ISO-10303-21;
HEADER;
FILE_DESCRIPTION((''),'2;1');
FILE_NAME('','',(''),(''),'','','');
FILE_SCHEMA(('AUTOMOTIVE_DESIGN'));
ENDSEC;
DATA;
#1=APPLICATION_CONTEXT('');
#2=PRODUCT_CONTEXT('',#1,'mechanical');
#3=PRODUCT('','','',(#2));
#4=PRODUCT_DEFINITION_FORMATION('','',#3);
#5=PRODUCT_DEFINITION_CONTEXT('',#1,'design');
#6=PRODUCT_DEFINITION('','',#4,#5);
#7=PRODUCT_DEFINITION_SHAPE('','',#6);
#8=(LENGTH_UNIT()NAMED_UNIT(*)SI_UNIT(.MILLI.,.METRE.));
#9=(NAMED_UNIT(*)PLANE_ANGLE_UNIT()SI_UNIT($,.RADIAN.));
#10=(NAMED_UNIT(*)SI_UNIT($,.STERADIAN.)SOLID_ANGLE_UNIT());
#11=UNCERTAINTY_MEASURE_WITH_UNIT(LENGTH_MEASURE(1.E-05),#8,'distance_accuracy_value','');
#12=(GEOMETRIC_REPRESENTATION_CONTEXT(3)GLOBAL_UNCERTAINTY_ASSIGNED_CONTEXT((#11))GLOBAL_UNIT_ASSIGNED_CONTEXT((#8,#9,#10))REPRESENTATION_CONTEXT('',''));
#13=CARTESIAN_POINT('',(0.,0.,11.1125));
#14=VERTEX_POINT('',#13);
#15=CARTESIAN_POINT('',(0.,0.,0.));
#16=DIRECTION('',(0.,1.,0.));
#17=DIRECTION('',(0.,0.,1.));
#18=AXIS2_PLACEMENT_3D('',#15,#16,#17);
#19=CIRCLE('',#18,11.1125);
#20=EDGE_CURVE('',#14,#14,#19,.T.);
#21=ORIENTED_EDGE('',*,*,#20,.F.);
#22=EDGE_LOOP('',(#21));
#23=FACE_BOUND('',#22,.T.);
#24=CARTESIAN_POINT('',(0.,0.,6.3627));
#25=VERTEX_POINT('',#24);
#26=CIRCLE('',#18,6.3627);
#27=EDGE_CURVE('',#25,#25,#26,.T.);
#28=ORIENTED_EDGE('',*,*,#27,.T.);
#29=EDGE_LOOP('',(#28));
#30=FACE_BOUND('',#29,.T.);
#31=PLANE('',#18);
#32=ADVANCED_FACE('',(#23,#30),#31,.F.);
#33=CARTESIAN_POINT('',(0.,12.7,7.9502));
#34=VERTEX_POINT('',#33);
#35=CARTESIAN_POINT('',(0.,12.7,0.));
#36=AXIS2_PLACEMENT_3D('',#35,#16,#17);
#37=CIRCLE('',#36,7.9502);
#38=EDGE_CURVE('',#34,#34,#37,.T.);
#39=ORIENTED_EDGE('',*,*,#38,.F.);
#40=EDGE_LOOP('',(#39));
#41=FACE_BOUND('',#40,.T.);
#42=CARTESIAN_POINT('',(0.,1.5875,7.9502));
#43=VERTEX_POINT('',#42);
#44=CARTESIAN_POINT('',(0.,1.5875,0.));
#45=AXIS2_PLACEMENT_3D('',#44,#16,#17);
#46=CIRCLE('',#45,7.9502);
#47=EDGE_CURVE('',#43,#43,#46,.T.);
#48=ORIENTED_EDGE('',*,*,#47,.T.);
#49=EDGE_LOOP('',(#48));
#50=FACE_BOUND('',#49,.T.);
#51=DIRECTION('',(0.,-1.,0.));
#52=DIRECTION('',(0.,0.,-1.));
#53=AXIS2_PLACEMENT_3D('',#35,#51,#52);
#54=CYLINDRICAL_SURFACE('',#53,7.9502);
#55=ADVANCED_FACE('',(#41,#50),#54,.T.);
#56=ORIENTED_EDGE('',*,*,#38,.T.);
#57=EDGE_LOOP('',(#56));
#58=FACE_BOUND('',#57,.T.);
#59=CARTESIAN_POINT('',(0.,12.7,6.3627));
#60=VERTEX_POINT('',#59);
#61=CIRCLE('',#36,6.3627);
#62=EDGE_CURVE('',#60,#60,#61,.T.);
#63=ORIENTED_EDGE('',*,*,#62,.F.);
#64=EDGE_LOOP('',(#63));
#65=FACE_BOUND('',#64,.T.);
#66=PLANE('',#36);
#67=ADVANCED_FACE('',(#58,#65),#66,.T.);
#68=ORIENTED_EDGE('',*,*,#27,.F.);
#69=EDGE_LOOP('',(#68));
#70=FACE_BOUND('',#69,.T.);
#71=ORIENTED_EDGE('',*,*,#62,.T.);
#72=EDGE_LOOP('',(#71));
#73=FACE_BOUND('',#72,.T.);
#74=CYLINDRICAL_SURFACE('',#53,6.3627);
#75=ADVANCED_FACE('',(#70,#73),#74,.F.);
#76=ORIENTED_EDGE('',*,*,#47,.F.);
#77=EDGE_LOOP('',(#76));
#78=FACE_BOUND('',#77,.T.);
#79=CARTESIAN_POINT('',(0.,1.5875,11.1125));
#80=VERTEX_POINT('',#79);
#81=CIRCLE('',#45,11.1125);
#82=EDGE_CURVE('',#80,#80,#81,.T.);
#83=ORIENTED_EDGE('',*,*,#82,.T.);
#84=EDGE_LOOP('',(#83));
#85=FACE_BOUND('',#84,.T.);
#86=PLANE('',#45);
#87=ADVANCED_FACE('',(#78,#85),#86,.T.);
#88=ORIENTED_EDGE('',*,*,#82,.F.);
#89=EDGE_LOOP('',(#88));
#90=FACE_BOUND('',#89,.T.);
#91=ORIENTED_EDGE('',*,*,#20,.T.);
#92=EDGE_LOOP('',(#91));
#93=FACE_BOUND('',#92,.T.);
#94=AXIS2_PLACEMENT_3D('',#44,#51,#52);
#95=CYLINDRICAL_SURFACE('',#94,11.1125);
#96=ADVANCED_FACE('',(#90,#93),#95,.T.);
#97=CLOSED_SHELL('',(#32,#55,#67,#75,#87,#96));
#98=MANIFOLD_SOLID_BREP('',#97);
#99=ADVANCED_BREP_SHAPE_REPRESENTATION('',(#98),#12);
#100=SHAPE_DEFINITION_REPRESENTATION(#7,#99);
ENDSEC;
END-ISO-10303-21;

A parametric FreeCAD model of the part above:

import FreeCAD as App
import Part
import Sketcher

V = App.Vector
Q = App.Units.Quantity

doc = App.newDocument("Part")
body = doc.addObject("PartDesign::Body", "Body")

sketch1 = body.newObject("Sketcher::SketchObject", "Sketch")
sketch1.AttachmentSupport = (doc.getObject("XZ_Plane"), [""])
sketch1.MapMode = "FlatFace"
sketch1.addGeometry([
    Part.Circle(V(0, 0, 0), V(0, 0, 1), 7.9502),
    Part.Circle(V(0, 0, 0), V(0, 0, 1), 6.3627),
], False)
sketch1.addConstraint([
    Sketcher.Constraint("Coincident", 0, 3, -1, 1),
    Sketcher.Constraint("Coincident", 1, 3, -1, 1),
    Sketcher.Constraint("Diameter", 0, Q("0.626 in")),
    Sketcher.Constraint("Diameter", 1, Q("0.501 in")),
])
pad1 = body.newObject("PartDesign::Pad", "Pad")
pad1.Profile = sketch1
pad1.Length = Q("0.5 in")
pad1.Reversed = True

sketch2 = body.newObject("Sketcher::SketchObject", "Sketch001")
sketch2.AttachmentSupport = (doc.getObject("XZ_Plane"), [""])
sketch2.MapMode = "FlatFace"
sketch2.addGeometry([
    Part.Circle(V(0, 0, 0), V(0, 0, 1), 11.1125),
    Part.Circle(V(0, 0, 0), V(0, 0, 1), 7.9502),
], False)
sketch2.addConstraint([
    Sketcher.Constraint("Coincident", 0, 3, -1, 1),
    Sketcher.Constraint("Coincident", 1, 3, -1, 1),
    Sketcher.Constraint("Diameter", 0, Q("0.875 in")),
    Sketcher.Constraint("Diameter", 1, Q("0.626 in")),
])
pad2 = body.newObject("PartDesign::Pad", "Pad001")
pad2.Profile = sketch2
pad2.Length = Q("0.0625 in")
pad2.Reversed = True

doc.recompute()
